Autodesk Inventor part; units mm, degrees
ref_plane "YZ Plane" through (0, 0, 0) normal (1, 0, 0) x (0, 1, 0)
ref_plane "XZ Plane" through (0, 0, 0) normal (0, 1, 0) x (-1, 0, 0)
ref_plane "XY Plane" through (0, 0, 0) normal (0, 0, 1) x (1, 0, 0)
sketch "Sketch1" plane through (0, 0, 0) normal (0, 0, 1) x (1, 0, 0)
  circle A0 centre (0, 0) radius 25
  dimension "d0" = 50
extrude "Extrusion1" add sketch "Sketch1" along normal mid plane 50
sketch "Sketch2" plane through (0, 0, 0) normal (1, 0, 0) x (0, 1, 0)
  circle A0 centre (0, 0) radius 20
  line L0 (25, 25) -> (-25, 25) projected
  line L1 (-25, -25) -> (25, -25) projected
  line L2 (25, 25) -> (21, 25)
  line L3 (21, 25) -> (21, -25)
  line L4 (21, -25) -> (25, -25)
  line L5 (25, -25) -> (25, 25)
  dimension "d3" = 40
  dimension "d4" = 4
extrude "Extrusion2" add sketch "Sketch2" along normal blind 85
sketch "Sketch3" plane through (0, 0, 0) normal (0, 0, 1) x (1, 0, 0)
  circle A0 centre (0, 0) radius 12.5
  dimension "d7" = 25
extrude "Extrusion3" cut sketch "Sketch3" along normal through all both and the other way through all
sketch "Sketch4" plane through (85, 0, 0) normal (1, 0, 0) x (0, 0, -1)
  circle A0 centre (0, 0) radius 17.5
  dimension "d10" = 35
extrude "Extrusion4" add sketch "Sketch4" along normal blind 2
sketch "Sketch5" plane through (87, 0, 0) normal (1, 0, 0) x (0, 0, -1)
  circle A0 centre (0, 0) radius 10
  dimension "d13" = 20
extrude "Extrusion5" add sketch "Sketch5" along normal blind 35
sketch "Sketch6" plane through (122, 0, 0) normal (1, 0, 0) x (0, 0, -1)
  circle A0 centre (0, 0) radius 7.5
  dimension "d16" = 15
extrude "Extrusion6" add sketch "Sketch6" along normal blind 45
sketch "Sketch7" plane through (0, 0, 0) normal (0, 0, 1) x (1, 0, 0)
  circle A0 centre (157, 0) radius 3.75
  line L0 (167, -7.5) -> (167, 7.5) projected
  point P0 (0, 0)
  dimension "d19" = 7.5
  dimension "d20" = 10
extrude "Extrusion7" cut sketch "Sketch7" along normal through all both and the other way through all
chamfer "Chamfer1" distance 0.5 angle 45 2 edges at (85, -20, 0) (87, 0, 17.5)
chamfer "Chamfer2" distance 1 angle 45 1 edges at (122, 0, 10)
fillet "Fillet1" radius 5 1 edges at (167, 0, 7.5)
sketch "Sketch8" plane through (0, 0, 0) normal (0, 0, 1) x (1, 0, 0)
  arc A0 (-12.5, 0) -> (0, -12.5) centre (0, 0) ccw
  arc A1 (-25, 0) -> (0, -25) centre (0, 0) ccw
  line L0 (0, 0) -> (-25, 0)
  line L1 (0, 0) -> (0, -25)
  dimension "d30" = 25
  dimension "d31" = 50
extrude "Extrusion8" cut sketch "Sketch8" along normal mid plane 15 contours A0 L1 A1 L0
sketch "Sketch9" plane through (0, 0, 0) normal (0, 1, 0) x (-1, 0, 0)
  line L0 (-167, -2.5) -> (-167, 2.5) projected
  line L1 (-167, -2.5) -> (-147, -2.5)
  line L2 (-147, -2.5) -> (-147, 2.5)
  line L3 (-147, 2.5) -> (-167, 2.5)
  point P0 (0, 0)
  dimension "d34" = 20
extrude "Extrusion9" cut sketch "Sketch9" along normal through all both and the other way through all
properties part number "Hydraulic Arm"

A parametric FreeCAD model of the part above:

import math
import FreeCAD as App
import Part
import Sketcher

V = App.Vector


def edges_at(feature, points):
    """Names of the edges that pass closest to the given points."""
    edges = feature.Shape.Edges
    near = lambda p: min(range(len(edges)), key=lambda i: edges[i].distToShape(Part.Vertex(*p))[0])
    return sorted({f"Edge{near(p) + 1}" for p in points})

doc = App.newDocument("Part")
body = doc.addObject("PartDesign::Body", "Body")

# Sketch on XY plane
sketch1 = doc.addObject("Sketcher::SketchObject", "Sketch")
body.addObject(sketch1)
sketch1.AttachmentSupport = (doc.XY_Plane, [""])
sketch1.MapMode = "FlatFace"
sketch1.addGeometry(Part.Circle(V(0, 0, 0), V(0, 0, 1), 25), False)
sketch1.addConstraint([
    Sketcher.Constraint("Coincident", 0, 3, -1, 1),
    Sketcher.Constraint("Diameter", 0, 50.0),
])
pad1 = doc.addObject("PartDesign::Pad", "Pad")
body.addObject(pad1)
pad1.Profile = sketch1
pad1.Length = 50
pad1.Midplane = True

# Sketch on YZ plane
sketch2 = doc.addObject("Sketcher::SketchObject", "Sketch001")
body.addObject(sketch2)
sketch2.AttachmentSupport = (doc.YZ_Plane, [""])
sketch2.MapMode = "FlatFace"
sketch2.addGeometry([
    Part.Circle(V(0, 0, 0), V(0, 0, 1), 20),  # 0
    Part.LineSegment(V(25, -25, 0), V(25, 25, 0)),  # 1
    Part.LineSegment(V(25, 25, 0), V(21, 25, 0)),  # 2
    Part.LineSegment(V(21, 25, 0), V(21, -25, 0)),  # 3
    Part.LineSegment(V(21, -25, 0), V(25, -25, 0)),  # 4
], False)
sketch2.addConstraint([
    Sketcher.Constraint("Coincident", 1, 2, 2, 1),
    Sketcher.Constraint("Coincident", 2, 2, 3, 1),
    Sketcher.Constraint("Coincident", 3, 2, 4, 1),
    Sketcher.Constraint("Coincident", 4, 2, 1, 1),
    Sketcher.Constraint("Vertical", 1),
    Sketcher.Constraint("Horizontal", 2),
    Sketcher.Constraint("Vertical", 3),
    Sketcher.Constraint("Horizontal", 4),
    Sketcher.Constraint("Coincident", 0, 3, -1, 1),
    Sketcher.Constraint("Diameter", 0, 40.0),
    Sketcher.Constraint("DistanceX", 2, 2, 2, 1, 4.0),
    Sketcher.Constraint("DistanceY", 1, 1, 1, 2, 50.0),
    Sketcher.Constraint("DistanceX", -1, 1, 1, 2, 25.0),
    Sketcher.Constraint("DistanceY", -1, 1, 1, 2, 25.0),
])
pad2 = doc.addObject("PartDesign::Pad", "Pad001")
body.addObject(pad2)
pad2.Profile = sketch2
pad2.Length = 85

# Sketch on XY plane
sketch3 = doc.addObject("Sketcher::SketchObject", "Sketch002")
body.addObject(sketch3)
sketch3.AttachmentSupport = (doc.XY_Plane, [""])
sketch3.MapMode = "FlatFace"
sketch3.addGeometry(Part.Circle(V(0, 0, 0), V(0, 0, 1), 12), False)
sketch3.addConstraint([
    Sketcher.Constraint("Coincident", 0, 3, -1, 1),
    Sketcher.Constraint("Diameter", 0, 25.0),
])
pocket1 = doc.addObject("PartDesign::Pocket", "Pocket")
body.addObject(pocket1)
pocket1.Profile = sketch3
pocket1.Type = "ThroughAll"
pocket1.Midplane = True

# Sketch on YZ plane
sketch4 = doc.addObject("Sketcher::SketchObject", "Sketch003")
body.addObject(sketch4)
sketch4.AttachmentSupport = (doc.YZ_Plane, [""])
sketch4.MapMode = "FlatFace"
sketch4.AttachmentOffset = App.Placement(V(0, 0, 85), App.Rotation())
sketch4.addGeometry(Part.Circle(V(0, 0, 0), V(0, 0, 1), 18), False)
sketch4.addConstraint([
    Sketcher.Constraint("Coincident", 0, 3, -1, 1),
    Sketcher.Constraint("Diameter", 0, 35.0),
])
pad3 = doc.addObject("PartDesign::Pad", "Pad002")
body.addObject(pad3)
pad3.Profile = sketch4
pad3.Length = 2

# Sketch on YZ plane
sketch5 = doc.addObject("Sketcher::SketchObject", "Sketch004")
body.addObject(sketch5)
sketch5.AttachmentSupport = (doc.YZ_Plane, [""])
sketch5.MapMode = "FlatFace"
sketch5.AttachmentOffset = App.Placement(V(0, 0, 87), App.Rotation())
sketch5.addGeometry(Part.Circle(V(0, 0, 0), V(0, 0, 1), 10), False)
sketch5.addConstraint([
    Sketcher.Constraint("Coincident", 0, 3, -1, 1),
    Sketcher.Constraint("Diameter", 0, 20.0),
])
pad4 = doc.addObject("PartDesign::Pad", "Pad003")
body.addObject(pad4)
pad4.Profile = sketch5
pad4.Length = 35

# Sketch on YZ plane
sketch6 = doc.addObject("Sketcher::SketchObject", "Sketch005")
body.addObject(sketch6)
sketch6.AttachmentSupport = (doc.YZ_Plane, [""])
sketch6.MapMode = "FlatFace"
sketch6.AttachmentOffset = App.Placement(V(0, 0, 122), App.Rotation())
sketch6.addGeometry(Part.Circle(V(0, 0, 0), V(0, 0, 1), 8), False)
sketch6.addConstraint([
    Sketcher.Constraint("Coincident", 0, 3, -1, 1),
    Sketcher.Constraint("Diameter", 0, 15.0),
])
pad5 = doc.addObject("PartDesign::Pad", "Pad004")
body.addObject(pad5)
pad5.Profile = sketch6
pad5.Length = 45

# Sketch on XY plane
sketch7 = doc.addObject("Sketcher::SketchObject", "Sketch006")
body.addObject(sketch7)
sketch7.AttachmentSupport = (doc.XY_Plane, [""])
sketch7.MapMode = "FlatFace"
sketch7.addGeometry(Part.Circle(V(157, 0, 0), V(0, 0, 1), 3.8), False)
sketch7.addConstraint([
    Sketcher.Constraint("PointOnObject", 0, 3, -1),
    Sketcher.Constraint("Diameter", 0, 7.5),
    Sketcher.Constraint("DistanceX", -1, 1, 0, 3, 157.0),
])
pocket2 = doc.addObject("PartDesign::Pocket", "Pocket001")
body.addObject(pocket2)
pocket2.Profile = sketch7
pocket2.Type = "ThroughAll"
pocket2.Midplane = True
doc.recompute()

chamfer = doc.addObject("PartDesign::Chamfer", "Chamfer")
body.addObject(chamfer)
chamfer.Base = (pocket2, edges_at(pocket2, [(85, -20, 0), (87, 0, 17.5)]))
chamfer.Size = 0.5
doc.recompute()

chamfer2 = doc.addObject("PartDesign::Chamfer", "Chamfer001")
body.addObject(chamfer2)
chamfer2.Base = (chamfer, edges_at(chamfer, [(122, 0, 10)]))
chamfer2.Size = 1
doc.recompute()

fillet = doc.addObject("PartDesign::Fillet", "Fillet")
body.addObject(fillet)
fillet.Base = (chamfer2, edges_at(chamfer2, [(167, 0, 7.5)]))
fillet.Radius = 5

# Sketch on XY plane
sketch8 = doc.addObject("Sketcher::SketchObject", "Sketch007")
body.addObject(sketch8)
sketch8.AttachmentSupport = (doc.XY_Plane, [""])
sketch8.MapMode = "FlatFace"
sketch8.addGeometry([
    Part.ArcOfCircle(Part.Circle(V(0, 0, 0), V(0, 0, 1), 12), math.radians(180), math.radians(270)),
    Part.LineSegment(V(-12, 0, 0), V(-25, 0, 0)),
    Part.ArcOfCircle(Part.Circle(V(0, 0, 0), V(0, 0, 1), 25), math.radians(180), math.radians(270)),
    Part.LineSegment(V(0, -25, 0), V(0, -12, 0)),
], False)
sketch8.addConstraint([
    Sketcher.Constraint("Coincident", 0, 1, 1, 1),
    Sketcher.Constraint("Coincident", 1, 2, 2, 1),
    Sketcher.Constraint("Coincident", 2, 2, 3, 1),
    Sketcher.Constraint("Coincident", 3, 2, 0, 2),
    Sketcher.Constraint("Horizontal", 1),
    Sketcher.Constraint("Vertical", 3),
    Sketcher.Constraint("Coincident", 0, 3, -1, 1),
    Sketcher.Constraint("Coincident", 2, 3, -1, 1),
    Sketcher.Constraint("PointOnObject", 0, 1, -1),
    Sketcher.Constraint("PointOnObject", 2, 2, -2),
    Sketcher.Constraint("Radius", 2, 25.0),
    Sketcher.Constraint("Radius", 0, 12.5),
])
pocket3 = doc.addObject("PartDesign::Pocket", "Pocket002")
body.addObject(pocket3)
pocket3.Profile = sketch8
pocket3.Length = 15
pocket3.Midplane = True

# Sketch on XZ plane
sketch9 = doc.addObject("Sketcher::SketchObject", "Sketch008")
body.addObject(sketch9)
sketch9.AttachmentSupport = (doc.XZ_Plane, [""])
sketch9.MapMode = "FlatFace"
sketch9.addGeometry([
    Part.LineSegment(V(167, 2, 0), V(167, -2, 0)),
    Part.LineSegment(V(167, -2, 0), V(147, -2, 0)),
    Part.LineSegment(V(147, -2, 0), V(147, 2, 0)),
    Part.LineSegment(V(147, 2, 0), V(167, 2, 0)),
], False)
sketch9.addConstraint([
    Sketcher.Constraint("Coincident", 0, 2, 1, 1),
    Sketcher.Constraint("Coincident", 1, 2, 2, 1),
    Sketcher.Constraint("Coincident", 2, 2, 3, 1),
    Sketcher.Constraint("Coincident", 3, 2, 0, 1),
    Sketcher.Constraint("Vertical", 0),
    Sketcher.Constraint("Horizontal", 1),
    Sketcher.Constraint("Vertical", 2),
    Sketcher.Constraint("Horizontal", 3),
    Sketcher.Constraint("DistanceX", 1, 2, 1, 1, 20.0),
    Sketcher.Constraint("DistanceY", 0, 2, 0, 1, 5.0),
    Sketcher.Constraint("DistanceX", -1, 1, 0, 2, 167.0),
    Sketcher.Constraint("DistanceY", 0, 2, -1, 1, 2.5),
])
pocket4 = doc.addObject("PartDesign::Pocket", "Pocket003")
body.addObject(pocket4)
pocket4.Profile = sketch9
pocket4.Type = "ThroughAll"
pocket4.Midplane = True

doc.recompute()
